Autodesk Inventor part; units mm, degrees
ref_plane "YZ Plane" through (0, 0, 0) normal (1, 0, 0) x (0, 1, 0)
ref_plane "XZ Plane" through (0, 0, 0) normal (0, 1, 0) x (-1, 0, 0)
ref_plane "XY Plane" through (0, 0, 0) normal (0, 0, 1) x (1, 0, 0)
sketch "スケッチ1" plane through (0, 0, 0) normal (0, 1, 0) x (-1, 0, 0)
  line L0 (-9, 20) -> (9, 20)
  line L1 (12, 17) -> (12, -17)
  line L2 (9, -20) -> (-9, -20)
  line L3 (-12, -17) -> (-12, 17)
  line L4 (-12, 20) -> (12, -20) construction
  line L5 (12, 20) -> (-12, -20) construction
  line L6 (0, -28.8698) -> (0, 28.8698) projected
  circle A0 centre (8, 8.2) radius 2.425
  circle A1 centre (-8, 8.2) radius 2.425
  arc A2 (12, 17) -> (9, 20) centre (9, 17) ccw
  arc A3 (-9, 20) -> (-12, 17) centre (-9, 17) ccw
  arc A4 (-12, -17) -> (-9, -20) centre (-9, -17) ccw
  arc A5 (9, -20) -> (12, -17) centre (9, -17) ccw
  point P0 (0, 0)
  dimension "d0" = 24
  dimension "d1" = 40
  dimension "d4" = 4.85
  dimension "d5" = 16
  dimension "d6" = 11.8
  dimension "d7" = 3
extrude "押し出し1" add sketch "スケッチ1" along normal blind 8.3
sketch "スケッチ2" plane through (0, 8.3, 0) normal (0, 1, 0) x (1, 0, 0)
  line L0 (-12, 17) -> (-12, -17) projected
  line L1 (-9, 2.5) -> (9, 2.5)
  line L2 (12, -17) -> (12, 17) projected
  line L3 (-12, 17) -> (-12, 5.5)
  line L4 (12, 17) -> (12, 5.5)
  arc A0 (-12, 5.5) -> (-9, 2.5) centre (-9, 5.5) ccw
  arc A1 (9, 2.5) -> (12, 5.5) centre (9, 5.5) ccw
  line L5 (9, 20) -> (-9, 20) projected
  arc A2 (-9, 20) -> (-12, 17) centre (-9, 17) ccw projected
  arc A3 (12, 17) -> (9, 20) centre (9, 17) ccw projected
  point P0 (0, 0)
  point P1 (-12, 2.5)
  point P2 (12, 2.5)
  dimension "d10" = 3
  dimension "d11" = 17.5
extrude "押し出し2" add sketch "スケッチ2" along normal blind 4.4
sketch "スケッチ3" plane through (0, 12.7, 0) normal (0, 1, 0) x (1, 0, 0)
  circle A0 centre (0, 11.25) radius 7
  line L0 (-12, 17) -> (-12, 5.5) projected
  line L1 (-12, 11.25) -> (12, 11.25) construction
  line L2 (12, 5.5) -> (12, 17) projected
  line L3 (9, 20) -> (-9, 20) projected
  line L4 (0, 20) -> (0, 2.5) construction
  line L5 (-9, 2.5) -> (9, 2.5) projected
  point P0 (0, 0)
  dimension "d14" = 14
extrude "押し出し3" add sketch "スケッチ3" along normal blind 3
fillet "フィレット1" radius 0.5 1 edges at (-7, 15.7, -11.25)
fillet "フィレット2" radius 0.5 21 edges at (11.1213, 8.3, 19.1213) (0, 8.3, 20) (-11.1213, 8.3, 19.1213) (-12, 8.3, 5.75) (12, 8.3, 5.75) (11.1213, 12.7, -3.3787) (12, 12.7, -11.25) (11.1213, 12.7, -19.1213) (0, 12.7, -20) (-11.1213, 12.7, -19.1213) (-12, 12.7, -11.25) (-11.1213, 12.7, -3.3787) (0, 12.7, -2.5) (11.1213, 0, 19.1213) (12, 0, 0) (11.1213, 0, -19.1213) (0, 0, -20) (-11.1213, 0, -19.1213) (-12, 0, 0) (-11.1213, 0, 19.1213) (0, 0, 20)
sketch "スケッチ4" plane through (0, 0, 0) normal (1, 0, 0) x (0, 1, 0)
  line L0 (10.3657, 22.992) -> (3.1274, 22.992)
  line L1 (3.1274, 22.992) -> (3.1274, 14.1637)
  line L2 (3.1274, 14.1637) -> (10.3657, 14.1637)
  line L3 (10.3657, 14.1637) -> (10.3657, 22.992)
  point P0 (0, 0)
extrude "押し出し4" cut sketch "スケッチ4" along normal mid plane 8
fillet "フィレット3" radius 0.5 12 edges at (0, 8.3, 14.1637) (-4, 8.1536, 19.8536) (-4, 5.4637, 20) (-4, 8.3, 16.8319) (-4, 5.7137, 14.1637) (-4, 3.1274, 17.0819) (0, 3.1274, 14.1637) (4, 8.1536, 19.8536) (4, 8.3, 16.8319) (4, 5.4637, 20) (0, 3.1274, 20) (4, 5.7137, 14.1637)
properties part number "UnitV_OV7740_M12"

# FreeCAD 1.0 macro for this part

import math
import FreeCAD as App
import Part
import Sketcher
from FreeCAD import Vector


def edges_at(feature, points):
    """Names of the edges that pass closest to the given points."""
    edges = feature.Shape.Edges
    near = lambda p: min(range(len(edges)), key=lambda i: edges[i].distToShape(Part.Vertex(*p))[0])
    return sorted({f"Edge{near(p) + 1}" for p in points})

doc = App.newDocument("Part")
body = doc.addObject("PartDesign::Body", "Body")

sketch1 = body.newObject("Sketcher::SketchObject", "Sketch")
sketch1.AttachmentSupport = (doc.getObject("XZ_Plane"), [""])
sketch1.MapMode = "FlatFace"
sketch1.addGeometry(Part.ArcOfCircle(Part.Circle(Vector(9, 17, 0), Vector(0, 0, 1), 3), math.radians(0), math.radians(90)), False)
sketch1.addGeometry(Part.LineSegment(Vector(12, 17, 0), Vector(12, -17, 0)), False)
sketch1.addGeometry(Part.ArcOfCircle(Part.Circle(Vector(9, -17, 0), Vector(0, 0, 1), 3), math.radians(-90), math.radians(0)), False)
sketch1.addGeometry(Part.LineSegment(Vector(9, -20, 0), Vector(-9, -20, 0)), False)
sketch1.addGeometry(Part.ArcOfCircle(Part.Circle(Vector(-9, -17, 0), Vector(0, 0, 1), 3), math.radians(180), math.radians(270)), False)
sketch1.addGeometry(Part.LineSegment(Vector(-12, -17, 0), Vector(-12, 17, 0)), False)
sketch1.addGeometry(Part.ArcOfCircle(Part.Circle(Vector(-9, 17, 0), Vector(0, 0, 1), 3), math.radians(90), math.radians(180)), False)
sketch1.addGeometry(Part.LineSegment(Vector(-9, 20, 0), Vector(9, 20, 0)), False)
sketch1.addGeometry(Part.Circle(Vector(8, 8.2, 0), Vector(0, 0, 1), 2.425), False)
sketch1.addGeometry(Part.Circle(Vector(-8, 8.2, 0), Vector(0, 0, 1), 2.425), False)
sketch1.addConstraint(Sketcher.Constraint("Tangent", 0, 1, 1, 1))
sketch1.addConstraint(Sketcher.Constraint("Tangent", 1, 2, 2, 2))
sketch1.addConstraint(Sketcher.Constraint("Tangent", 2, 1, 3, 1))
sketch1.addConstraint(Sketcher.Constraint("Tangent", 3, 2, 4, 2))
sketch1.addConstraint(Sketcher.Constraint("Tangent", 4, 1, 5, 1))
sketch1.addConstraint(Sketcher.Constraint("Tangent", 5, 2, 6, 2))
sketch1.addConstraint(Sketcher.Constraint("Tangent", 6, 1, 7, 1))
sketch1.addConstraint(Sketcher.Constraint("Tangent", 7, 2, 0, 2))
sketch1.addConstraint(Sketcher.Constraint("Vertical", 1))
sketch1.addConstraint(Sketcher.Constraint("Horizontal", 3))
sketch1.addConstraint(Sketcher.Constraint("Vertical", 5))
sketch1.addConstraint(Sketcher.Constraint("Horizontal", 7))
sketch1.addConstraint(Sketcher.Constraint("Equal", 0, 2))
sketch1.addConstraint(Sketcher.Constraint("Equal", 2, 4))
sketch1.addConstraint(Sketcher.Constraint("Equal", 4, 6))
sketch1.addConstraint(Sketcher.Constraint("Equal", 8, 9))
sketch1.addConstraint(Sketcher.Constraint("Symmetric", 0, 3, 4, 3, -1, 1))
sketch1.addConstraint(Sketcher.Constraint("Symmetric", 8, 3, 9, 3, -2))
sketch1.addConstraint(Sketcher.Constraint("Radius", 0, 3.0))
sketch1.addConstraint(Sketcher.Constraint("Diameter", 8, 4.85))
sketch1.addConstraint(Sketcher.Constraint("DistanceX", 9, 3, 8, 3, 16.0))
sketch1.addConstraint(Sketcher.Constraint("DistanceX", 4, 1, 1, 2, 24.0))
sketch1.addConstraint(Sketcher.Constraint("DistanceY", 9, 3, 6, 1, 11.8))
sketch1.addConstraint(Sketcher.Constraint("DistanceY", 1, 2, 1, 1, 34.0))
pad1 = body.newObject("PartDesign::Pad", "Pad")
pad1.Profile = sketch1
pad1.Length = 8.3
pad1.Reversed = True

sketch2 = body.newObject("Sketcher::SketchObject", "Sketch001")
sketch2.AttachmentSupport = (doc.getObject("XZ_Plane"), [""])
sketch2.MapMode = "FlatFace"
sketch2.AttachmentOffset = App.Placement(Vector(0, 0, -8.3), App.Rotation())
sketch2.addGeometry(Part.ArcOfCircle(Part.Circle(Vector(-9, -17, 0), Vector(0, 0, 1), 3), math.radians(180), math.radians(270)), False)
sketch2.addGeometry(Part.LineSegment(Vector(-12, -17, 0), Vector(-12, -5.5, 0)), False)
sketch2.addGeometry(Part.ArcOfCircle(Part.Circle(Vector(-9, -5.5, 0), Vector(0, 0, 1), 3), math.radians(90), math.radians(180)), False)
sketch2.addGeometry(Part.LineSegment(Vector(-9, -2.5, 0), Vector(9, -2.5, 0)), False)
sketch2.addGeometry(Part.ArcOfCircle(Part.Circle(Vector(9, -5.5, 0), Vector(0, 0, 1), 3), math.radians(0), math.radians(90)), False)
sketch2.addGeometry(Part.LineSegment(Vector(12, -5.5, 0), Vector(12, -17, 0)), False)
sketch2.addGeometry(Part.ArcOfCircle(Part.Circle(Vector(9, -17, 0), Vector(0, 0, 1), 3), math.radians(-90), math.radians(0)), False)
sketch2.addGeometry(Part.LineSegment(Vector(9, -20, 0), Vector(-9, -20, 0)), False)
sketch2.addConstraint(Sketcher.Constraint("Tangent", 0, 1, 1, 1))
sketch2.addConstraint(Sketcher.Constraint("Tangent", 1, 2, 2, 2))
sketch2.addConstraint(Sketcher.Constraint("Tangent", 2, 1, 3, 1))
sketch2.addConstraint(Sketcher.Constraint("Tangent", 3, 2, 4, 2))
sketch2.addConstraint(Sketcher.Constraint("Tangent", 4, 1, 5, 1))
sketch2.addConstraint(Sketcher.Constraint("Tangent", 5, 2, 6, 2))
sketch2.addConstraint(Sketcher.Constraint("Tangent", 6, 1, 7, 1))
sketch2.addConstraint(Sketcher.Constraint("Tangent", 7, 2, 0, 2))
sketch2.addConstraint(Sketcher.Constraint("Vertical", 1))
sketch2.addConstraint(Sketcher.Constraint("Horizontal", 3))
sketch2.addConstraint(Sketcher.Constraint("Vertical", 5))
sketch2.addConstraint(Sketcher.Constraint("Horizontal", 7))
sketch2.addConstraint(Sketcher.Constraint("Equal", 0, 2))
sketch2.addConstraint(Sketcher.Constraint("Equal", 2, 4))
sketch2.addConstraint(Sketcher.Constraint("Equal", 4, 6))
sketch2.addConstraint(Sketcher.Constraint("Radius", 0, 3.0))
sketch2.addConstraint(Sketcher.Constraint("DistanceY", 6, 1, 3, 2, 17.5))
sketch2.addConstraint(Sketcher.Constraint("DistanceX", 3, 1, 3, 2, 18.0))
sketch2.addConstraint(Sketcher.Constraint("DistanceX", 0, 3, -1, 1, 9.0))
sketch2.addConstraint(Sketcher.Constraint("DistanceY", 0, 3, -1, 1, 17.0))
pad2 = body.newObject("PartDesign::Pad", "Pad001")
pad2.Profile = sketch2
pad2.Length = 4.4
pad2.Reversed = True

sketch3 = body.newObject("Sketcher::SketchObject", "Sketch002")
sketch3.AttachmentSupport = (doc.getObject("XZ_Plane"), [""])
sketch3.MapMode = "FlatFace"
sketch3.AttachmentOffset = App.Placement(Vector(0, 0, -12.7), App.Rotation())
sketch3.addGeometry(Part.Circle(Vector(0, -11.25, 0), Vector(0, 0, 1), 7), False)
sketch3.addConstraint(Sketcher.Constraint("PointOnObject", 0, 3, -2))
sketch3.addConstraint(Sketcher.Constraint("Diameter", 0, 14.0))
sketch3.addConstraint(Sketcher.Constraint("DistanceY", 0, 3, -1, 1, 11.25))
pad3 = body.newObject("PartDesign::Pad", "Pad002")
pad3.Profile = sketch3
pad3.Length = 3
pad3.Reversed = True
doc.recompute()

fillet = body.newObject("PartDesign::Fillet", "Fillet")
fillet.Base = (pad3, edges_at(pad3, [(-7, 15.7, -11.25)]))
fillet.Radius = 0.5
doc.recompute()

fillet2 = body.newObject("PartDesign::Fillet", "Fillet001")
fillet2.Base = (fillet, edges_at(fillet, [
    (11.121, 8.3, 19.121),
    (0, 8.3, 20),
    (-11.121, 8.3, 19.121),
    (-12, 8.3, 5.75),
    (12, 8.3, 5.75),
    (11.121, 12.7, -3.379),
    (12, 12.7, -11.25),
    (11.121, 12.7, -19.121),
    (0, 12.7, -20),
    (-11.121, 12.7, -19.121),
    (-12, 12.7, -11.25),
    (-11.121, 12.7, -3.379),
    (0, 12.7, -2.5),
    (11.121, 0, 19.121),
    (12, 0, 0),
    (11.121, 0, -19.121),
    (0, 0, -20),
    (-11.121, 0, -19.121),
    (-12, 0, 0),
    (-11.121, 0, 19.121),
    (0, 0, 20),
]))
fillet2.Radius = 0.5

sketch4 = body.newObject("Sketcher::SketchObject", "Sketch003")
sketch4.AttachmentSupport = (doc.getObject("YZ_Plane"), [""])
sketch4.MapMode = "FlatFace"
sketch4.addGeometry(Part.LineSegment(Vector(10.3657, 14.1637, 0), Vector(10.3657, 22.992, 0)), False)
sketch4.addGeometry(Part.LineSegment(Vector(10.3657, 22.992, 0), Vector(3.1274, 22.992, 0)), False)
sketch4.addGeometry(Part.LineSegment(Vector(3.1274, 22.992, 0), Vector(3.1274, 14.1637, 0)), False)
sketch4.addGeometry(Part.LineSegment(Vector(3.1274, 14.1637, 0), Vector(10.3657, 14.1637, 0)), False)
sketch4.addConstraint(Sketcher.Constraint("Coincident", 0, 2, 1, 1))
sketch4.addConstraint(Sketcher.Constraint("Coincident", 1, 2, 2, 1))
sketch4.addConstraint(Sketcher.Constraint("Coincident", 2, 2, 3, 1))
sketch4.addConstraint(Sketcher.Constraint("Coincident", 3, 2, 0, 1))
sketch4.addConstraint(Sketcher.Constraint("Vertical", 0))
sketch4.addConstraint(Sketcher.Constraint("Horizontal", 1))
sketch4.addConstraint(Sketcher.Constraint("Vertical", 2))
sketch4.addConstraint(Sketcher.Constraint("Horizontal", 3))
sketch4.addConstraint(Sketcher.Constraint("DistanceX", 1, 2, 1, 1, 7.2383))
sketch4.addConstraint(Sketcher.Constraint("DistanceY", 0, 1, 0, 2, 8.8283))
sketch4.addConstraint(Sketcher.Constraint("DistanceY", -1, 1, 0, 2, 22.992))
sketch4.addConstraint(Sketcher.Constraint("DistanceX", -1, 1, 0, 2, 10.3657))
pocket1 = body.newObject("PartDesign::Pocket", "Pocket")
pocket1.Profile = sketch4
pocket1.Length = 8
pocket1.Midplane = True
doc.recompute()

fillet3 = body.newObject("PartDesign::Fillet", "Fillet002")
fillet3.Base = (pocket1, edges_at(pocket1, [
    (0, 8.3, 14.164),
    (-4, 8.154, 19.854),
    (-4, 5.464, 20),
    (-4, 8.3, 16.832),
    (-4, 5.714, 14.164),
    (-4, 3.127, 17.082),
    (0, 3.127, 14.164),
    (4, 8.154, 19.854),
    (4, 8.3, 16.832),
    (4, 5.464, 20),
    (0, 3.127, 20),
    (4, 5.714, 14.164),
]))
fillet3.Radius = 0.5

doc.recompute()
